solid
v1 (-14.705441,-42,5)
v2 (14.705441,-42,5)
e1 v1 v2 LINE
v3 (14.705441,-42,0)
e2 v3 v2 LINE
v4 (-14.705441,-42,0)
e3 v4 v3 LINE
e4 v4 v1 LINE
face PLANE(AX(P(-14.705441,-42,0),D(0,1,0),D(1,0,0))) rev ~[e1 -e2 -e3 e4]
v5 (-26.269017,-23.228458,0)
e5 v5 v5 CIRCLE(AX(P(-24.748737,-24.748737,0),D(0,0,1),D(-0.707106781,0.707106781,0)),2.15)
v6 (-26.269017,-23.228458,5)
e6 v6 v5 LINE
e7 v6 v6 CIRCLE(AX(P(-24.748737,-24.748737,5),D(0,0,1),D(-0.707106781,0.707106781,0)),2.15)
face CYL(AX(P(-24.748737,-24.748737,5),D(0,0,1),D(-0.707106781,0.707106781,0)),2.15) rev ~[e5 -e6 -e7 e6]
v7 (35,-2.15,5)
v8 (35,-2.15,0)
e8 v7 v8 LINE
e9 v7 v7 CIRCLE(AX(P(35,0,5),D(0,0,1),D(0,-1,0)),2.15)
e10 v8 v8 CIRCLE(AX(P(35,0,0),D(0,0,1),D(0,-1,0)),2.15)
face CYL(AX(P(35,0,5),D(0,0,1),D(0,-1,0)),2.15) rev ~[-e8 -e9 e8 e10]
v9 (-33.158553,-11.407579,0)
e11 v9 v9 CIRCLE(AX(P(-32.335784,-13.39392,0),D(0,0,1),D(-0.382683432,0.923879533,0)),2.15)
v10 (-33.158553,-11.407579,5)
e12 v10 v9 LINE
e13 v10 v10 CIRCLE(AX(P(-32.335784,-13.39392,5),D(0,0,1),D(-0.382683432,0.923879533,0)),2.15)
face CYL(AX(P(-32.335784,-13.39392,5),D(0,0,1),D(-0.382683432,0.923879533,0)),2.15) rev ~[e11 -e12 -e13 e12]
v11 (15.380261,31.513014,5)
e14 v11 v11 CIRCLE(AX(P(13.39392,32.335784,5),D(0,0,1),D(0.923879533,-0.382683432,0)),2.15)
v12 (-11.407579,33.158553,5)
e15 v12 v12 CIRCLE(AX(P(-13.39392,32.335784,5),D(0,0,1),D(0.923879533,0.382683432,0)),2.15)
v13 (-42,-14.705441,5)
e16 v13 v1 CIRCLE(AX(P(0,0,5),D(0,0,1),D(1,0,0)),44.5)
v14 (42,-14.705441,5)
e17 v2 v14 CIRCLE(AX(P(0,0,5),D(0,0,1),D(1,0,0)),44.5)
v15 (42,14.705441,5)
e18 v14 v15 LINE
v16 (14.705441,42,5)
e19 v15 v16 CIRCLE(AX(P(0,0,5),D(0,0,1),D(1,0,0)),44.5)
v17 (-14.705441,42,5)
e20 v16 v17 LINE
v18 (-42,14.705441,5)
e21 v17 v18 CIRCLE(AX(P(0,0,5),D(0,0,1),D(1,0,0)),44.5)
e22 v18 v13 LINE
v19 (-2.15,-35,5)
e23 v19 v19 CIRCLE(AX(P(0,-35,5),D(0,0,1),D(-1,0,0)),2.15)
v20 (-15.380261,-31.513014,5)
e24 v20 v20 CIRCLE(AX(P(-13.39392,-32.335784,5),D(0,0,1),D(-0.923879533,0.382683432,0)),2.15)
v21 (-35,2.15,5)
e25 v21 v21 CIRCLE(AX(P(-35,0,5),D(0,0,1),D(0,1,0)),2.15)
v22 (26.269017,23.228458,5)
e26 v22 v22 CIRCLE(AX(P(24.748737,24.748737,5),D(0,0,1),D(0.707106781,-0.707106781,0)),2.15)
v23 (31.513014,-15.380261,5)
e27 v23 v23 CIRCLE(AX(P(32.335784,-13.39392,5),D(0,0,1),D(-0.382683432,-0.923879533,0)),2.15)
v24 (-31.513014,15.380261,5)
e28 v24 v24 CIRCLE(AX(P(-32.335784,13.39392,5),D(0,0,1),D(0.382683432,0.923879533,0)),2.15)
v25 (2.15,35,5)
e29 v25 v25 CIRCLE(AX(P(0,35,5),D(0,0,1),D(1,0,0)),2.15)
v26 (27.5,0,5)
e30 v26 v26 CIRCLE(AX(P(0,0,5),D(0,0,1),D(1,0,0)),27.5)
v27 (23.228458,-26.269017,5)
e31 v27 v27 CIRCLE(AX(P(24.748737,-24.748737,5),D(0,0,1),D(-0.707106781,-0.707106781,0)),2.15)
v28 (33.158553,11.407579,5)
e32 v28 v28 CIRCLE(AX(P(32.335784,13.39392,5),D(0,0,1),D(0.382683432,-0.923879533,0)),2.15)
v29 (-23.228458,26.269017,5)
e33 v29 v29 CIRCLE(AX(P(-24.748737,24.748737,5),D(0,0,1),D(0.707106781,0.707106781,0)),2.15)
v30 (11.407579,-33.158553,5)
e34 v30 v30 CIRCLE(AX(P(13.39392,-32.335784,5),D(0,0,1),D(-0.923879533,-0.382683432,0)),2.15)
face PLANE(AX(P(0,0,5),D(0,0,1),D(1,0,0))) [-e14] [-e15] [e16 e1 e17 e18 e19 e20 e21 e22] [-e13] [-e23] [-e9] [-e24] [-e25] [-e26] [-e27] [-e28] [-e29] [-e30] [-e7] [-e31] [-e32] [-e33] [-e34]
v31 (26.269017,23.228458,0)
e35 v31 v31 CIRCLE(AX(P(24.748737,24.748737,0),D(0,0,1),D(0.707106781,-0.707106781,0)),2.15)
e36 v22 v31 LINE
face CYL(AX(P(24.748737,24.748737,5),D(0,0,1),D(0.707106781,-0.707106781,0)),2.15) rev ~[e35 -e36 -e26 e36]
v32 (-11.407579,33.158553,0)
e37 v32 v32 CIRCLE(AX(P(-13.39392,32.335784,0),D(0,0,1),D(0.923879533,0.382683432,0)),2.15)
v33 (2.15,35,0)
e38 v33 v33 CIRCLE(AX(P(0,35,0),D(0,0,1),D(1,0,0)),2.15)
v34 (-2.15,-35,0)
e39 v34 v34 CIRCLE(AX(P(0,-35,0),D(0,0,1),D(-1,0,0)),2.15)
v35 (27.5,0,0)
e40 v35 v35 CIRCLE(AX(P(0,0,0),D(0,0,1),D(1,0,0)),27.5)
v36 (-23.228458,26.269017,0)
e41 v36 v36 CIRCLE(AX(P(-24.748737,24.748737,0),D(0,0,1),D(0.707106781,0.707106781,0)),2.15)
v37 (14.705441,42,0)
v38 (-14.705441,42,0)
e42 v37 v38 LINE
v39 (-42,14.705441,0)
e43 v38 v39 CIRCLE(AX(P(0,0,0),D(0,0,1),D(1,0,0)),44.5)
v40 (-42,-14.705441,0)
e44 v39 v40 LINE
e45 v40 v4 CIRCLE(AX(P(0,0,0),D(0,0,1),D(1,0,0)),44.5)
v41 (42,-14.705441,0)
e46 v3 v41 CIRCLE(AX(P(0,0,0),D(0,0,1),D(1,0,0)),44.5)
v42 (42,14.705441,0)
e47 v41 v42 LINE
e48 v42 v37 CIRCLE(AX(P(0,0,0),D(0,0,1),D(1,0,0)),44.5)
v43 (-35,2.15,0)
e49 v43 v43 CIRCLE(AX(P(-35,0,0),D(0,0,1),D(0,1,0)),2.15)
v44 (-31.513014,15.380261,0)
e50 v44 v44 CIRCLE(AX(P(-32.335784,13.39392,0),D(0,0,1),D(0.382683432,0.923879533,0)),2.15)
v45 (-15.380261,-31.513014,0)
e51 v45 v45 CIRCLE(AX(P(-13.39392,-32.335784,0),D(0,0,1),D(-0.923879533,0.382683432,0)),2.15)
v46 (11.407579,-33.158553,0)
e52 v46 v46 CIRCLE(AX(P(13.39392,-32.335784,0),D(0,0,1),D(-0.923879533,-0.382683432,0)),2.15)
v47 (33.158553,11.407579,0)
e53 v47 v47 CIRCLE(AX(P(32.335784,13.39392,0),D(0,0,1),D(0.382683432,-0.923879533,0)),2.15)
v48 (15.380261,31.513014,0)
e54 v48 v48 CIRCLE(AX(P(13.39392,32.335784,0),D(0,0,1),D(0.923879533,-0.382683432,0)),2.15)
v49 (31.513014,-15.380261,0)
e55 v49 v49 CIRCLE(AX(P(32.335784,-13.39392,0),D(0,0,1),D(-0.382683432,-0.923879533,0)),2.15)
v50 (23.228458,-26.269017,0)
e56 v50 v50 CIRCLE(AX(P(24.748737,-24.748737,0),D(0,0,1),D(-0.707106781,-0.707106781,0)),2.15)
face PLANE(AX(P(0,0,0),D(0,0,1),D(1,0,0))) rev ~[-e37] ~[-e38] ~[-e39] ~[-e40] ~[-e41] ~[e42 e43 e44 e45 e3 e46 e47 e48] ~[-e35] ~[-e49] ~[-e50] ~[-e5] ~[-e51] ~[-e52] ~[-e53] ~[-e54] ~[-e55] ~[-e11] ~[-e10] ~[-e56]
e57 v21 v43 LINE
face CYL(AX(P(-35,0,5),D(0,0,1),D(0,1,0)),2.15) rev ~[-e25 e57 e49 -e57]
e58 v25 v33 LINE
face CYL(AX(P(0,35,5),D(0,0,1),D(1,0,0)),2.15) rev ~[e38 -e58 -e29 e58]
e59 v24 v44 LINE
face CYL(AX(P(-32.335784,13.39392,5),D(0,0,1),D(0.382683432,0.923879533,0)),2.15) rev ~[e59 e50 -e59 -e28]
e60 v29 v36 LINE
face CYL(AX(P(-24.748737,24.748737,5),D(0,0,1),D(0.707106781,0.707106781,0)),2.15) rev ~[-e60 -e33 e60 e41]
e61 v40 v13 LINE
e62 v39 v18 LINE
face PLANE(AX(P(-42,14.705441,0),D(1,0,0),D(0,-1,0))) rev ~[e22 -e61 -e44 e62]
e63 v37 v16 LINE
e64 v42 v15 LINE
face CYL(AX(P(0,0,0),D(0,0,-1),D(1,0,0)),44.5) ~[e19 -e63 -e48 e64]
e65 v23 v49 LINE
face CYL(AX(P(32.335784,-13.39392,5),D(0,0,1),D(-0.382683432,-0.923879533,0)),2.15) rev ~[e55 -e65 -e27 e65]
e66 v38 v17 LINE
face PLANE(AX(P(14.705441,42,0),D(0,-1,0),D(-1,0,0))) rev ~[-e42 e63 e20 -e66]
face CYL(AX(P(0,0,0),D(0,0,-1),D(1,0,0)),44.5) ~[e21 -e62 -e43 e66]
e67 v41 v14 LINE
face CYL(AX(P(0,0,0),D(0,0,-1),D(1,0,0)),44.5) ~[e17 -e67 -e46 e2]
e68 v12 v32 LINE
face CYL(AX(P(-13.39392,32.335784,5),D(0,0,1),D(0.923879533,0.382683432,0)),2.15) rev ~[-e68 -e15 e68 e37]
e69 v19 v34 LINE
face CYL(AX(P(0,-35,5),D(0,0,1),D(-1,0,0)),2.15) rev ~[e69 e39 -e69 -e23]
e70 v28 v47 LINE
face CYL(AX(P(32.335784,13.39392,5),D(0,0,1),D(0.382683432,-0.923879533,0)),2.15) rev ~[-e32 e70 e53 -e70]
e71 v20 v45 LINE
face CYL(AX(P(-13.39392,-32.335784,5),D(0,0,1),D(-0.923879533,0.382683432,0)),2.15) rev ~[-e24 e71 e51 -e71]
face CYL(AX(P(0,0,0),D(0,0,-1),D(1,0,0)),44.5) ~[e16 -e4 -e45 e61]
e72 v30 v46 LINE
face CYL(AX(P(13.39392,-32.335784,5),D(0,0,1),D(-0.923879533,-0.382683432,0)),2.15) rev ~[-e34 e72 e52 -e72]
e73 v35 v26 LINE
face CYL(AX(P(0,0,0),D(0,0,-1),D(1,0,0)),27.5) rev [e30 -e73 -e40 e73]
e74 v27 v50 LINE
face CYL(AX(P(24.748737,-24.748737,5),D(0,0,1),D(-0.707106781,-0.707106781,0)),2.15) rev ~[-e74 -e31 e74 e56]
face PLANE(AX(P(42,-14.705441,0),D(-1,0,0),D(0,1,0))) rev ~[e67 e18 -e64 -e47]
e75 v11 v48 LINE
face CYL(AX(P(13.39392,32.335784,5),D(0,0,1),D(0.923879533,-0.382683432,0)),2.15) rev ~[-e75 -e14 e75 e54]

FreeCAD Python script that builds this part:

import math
import FreeCAD as App
import Part
import Sketcher

V = App.Vector
Q = App.Units.Quantity

doc = App.newDocument("Part")
body = doc.addObject("PartDesign::Body", "Body")

# Sketch on XY plane
sketch1 = body.newObject("Sketcher::SketchObject", "Sketch")
sketch1.AttachmentSupport = (doc.getObject("XY_Plane"), [""])
sketch1.MapMode = "FlatFace"
sketch1.addGeometry(Part.LineSegment(V(42, -15, 0), V(42, 15, 0)), False)
sketch1.addGeometry(Part.ArcOfCircle(Part.Circle(V(0, 0, 0), V(0, 0, 1), 44), math.radians(19), math.radians(71)), False)
sketch1.addGeometry(Part.LineSegment(V(15, 42, 0), V(-15, 42, 0)), False)
sketch1.addGeometry(Part.ArcOfCircle(Part.Circle(V(0, 0, 0), V(0, 0, 1), 44), math.radians(109), math.radians(161)), False)
sketch1.addGeometry(Part.LineSegment(V(-42, 15, 0), V(-42, -15, 0)), False)
sketch1.addGeometry(Part.ArcOfCircle(Part.Circle(V(0, 0, 0), V(0, 0, 1), 44), math.radians(-161), math.radians(-109)), False)
sketch1.addGeometry(Part.LineSegment(V(-15, -42, 0), V(15, -42, 0)), False)
sketch1.addGeometry(Part.ArcOfCircle(Part.Circle(V(0, 0, 0), V(0, 0, 1), 44), math.radians(-71), math.radians(-19)), False)
sketch1.addGeometry(Part.Circle(V(0, 0, 0), V(0, 0, 1), 28), False)
sketch1.addConstraint(Sketcher.Constraint("Coincident", 0, 2, 1, 1))
sketch1.addConstraint(Sketcher.Constraint("Coincident", 1, 2, 2, 1))
sketch1.addConstraint(Sketcher.Constraint("Coincident", 2, 2, 3, 1))
sketch1.addConstraint(Sketcher.Constraint("Coincident", 3, 2, 4, 1))
sketch1.addConstraint(Sketcher.Constraint("Coincident", 4, 2, 5, 1))
sketch1.addConstraint(Sketcher.Constraint("Coincident", 5, 2, 6, 1))
sketch1.addConstraint(Sketcher.Constraint("Coincident", 6, 2, 7, 1))
sketch1.addConstraint(Sketcher.Constraint("Coincident", 7, 2, 0, 1))
sketch1.addConstraint(Sketcher.Constraint("Vertical", 0))
sketch1.addConstraint(Sketcher.Constraint("Horizontal", 2))
sketch1.addConstraint(Sketcher.Constraint("Vertical", 4))
sketch1.addConstraint(Sketcher.Constraint("Horizontal", 6))
sketch1.addConstraint(Sketcher.Constraint("Coincident", 1, 3, -1, 1))
sketch1.addConstraint(Sketcher.Constraint("Coincident", 3, 3, -1, 1))
sketch1.addConstraint(Sketcher.Constraint("Coincident", 5, 3, -1, 1))
sketch1.addConstraint(Sketcher.Constraint("Coincident", 7, 3, -1, 1))
sketch1.addConstraint(Sketcher.Constraint("Coincident", 8, 3, -1, 1))
sketch1.addConstraint(Sketcher.Constraint("Equal", 1, 3))
sketch1.addConstraint(Sketcher.Constraint("Equal", 3, 5))
sketch1.addConstraint(Sketcher.Constraint("Equal", 5, 7))
sketch1.addConstraint(Sketcher.Constraint("Horizontal", 0, 2, 3, 2))
sketch1.addConstraint(Sketcher.Constraint("Vertical", 2, 2, 5, 2))
sketch1.addConstraint(Sketcher.Constraint("Equal", 6, 0))
sketch1.addConstraint(Sketcher.Constraint("Diameter", 8, Q("55 mm")))
sketch1.addConstraint(Sketcher.Constraint("Radius", 1, Q("44.5 mm")))
sketch1.addConstraint(Sketcher.Constraint("DistanceX", -1, 1, 0, 2, Q("42 mm")))
pad1 = body.newObject("PartDesign::Pad", "Pad")
pad1.Profile = sketch1
pad1.Length = 5

# Sketch on XY plane
sketch2 = body.newObject("Sketcher::SketchObject", "Sketch001")
sketch2.AttachmentSupport = (doc.getObject("XY_Plane"), [""])
sketch2.MapMode = "FlatFace"
sketch2.AttachmentOffset = App.Placement(V(0, 0, 5), App.Rotation())
sketch2.addGeometry(Part.Circle(V(0, 35, 0), V(0, 0, 1), 2.1), False)
sketch2.addConstraint(Sketcher.Constraint("PointOnObject", 0, 3, -2))
sketch2.addConstraint(Sketcher.Constraint("Diameter", 0, Q("4.3 mm")))
sketch2.addConstraint(Sketcher.Constraint("DistanceY", -1, 1, 0, 3, Q("35 mm")))
pocket1 = body.newObject("PartDesign::Pocket", "Pocket")
pocket1.Profile = sketch2
pocket1.Length = 10
doc.recompute()

polarpattern = body.newObject("PartDesign::PolarPattern", "PolarPattern")
polarpattern.Originals = [pocket1]
polarpattern.Axis = (doc.getObject("Z_Axis"), [""])
polarpattern.Angle = 360
polarpattern.Occurrences = 16
body.Tip = polarpattern

doc.recompute()
